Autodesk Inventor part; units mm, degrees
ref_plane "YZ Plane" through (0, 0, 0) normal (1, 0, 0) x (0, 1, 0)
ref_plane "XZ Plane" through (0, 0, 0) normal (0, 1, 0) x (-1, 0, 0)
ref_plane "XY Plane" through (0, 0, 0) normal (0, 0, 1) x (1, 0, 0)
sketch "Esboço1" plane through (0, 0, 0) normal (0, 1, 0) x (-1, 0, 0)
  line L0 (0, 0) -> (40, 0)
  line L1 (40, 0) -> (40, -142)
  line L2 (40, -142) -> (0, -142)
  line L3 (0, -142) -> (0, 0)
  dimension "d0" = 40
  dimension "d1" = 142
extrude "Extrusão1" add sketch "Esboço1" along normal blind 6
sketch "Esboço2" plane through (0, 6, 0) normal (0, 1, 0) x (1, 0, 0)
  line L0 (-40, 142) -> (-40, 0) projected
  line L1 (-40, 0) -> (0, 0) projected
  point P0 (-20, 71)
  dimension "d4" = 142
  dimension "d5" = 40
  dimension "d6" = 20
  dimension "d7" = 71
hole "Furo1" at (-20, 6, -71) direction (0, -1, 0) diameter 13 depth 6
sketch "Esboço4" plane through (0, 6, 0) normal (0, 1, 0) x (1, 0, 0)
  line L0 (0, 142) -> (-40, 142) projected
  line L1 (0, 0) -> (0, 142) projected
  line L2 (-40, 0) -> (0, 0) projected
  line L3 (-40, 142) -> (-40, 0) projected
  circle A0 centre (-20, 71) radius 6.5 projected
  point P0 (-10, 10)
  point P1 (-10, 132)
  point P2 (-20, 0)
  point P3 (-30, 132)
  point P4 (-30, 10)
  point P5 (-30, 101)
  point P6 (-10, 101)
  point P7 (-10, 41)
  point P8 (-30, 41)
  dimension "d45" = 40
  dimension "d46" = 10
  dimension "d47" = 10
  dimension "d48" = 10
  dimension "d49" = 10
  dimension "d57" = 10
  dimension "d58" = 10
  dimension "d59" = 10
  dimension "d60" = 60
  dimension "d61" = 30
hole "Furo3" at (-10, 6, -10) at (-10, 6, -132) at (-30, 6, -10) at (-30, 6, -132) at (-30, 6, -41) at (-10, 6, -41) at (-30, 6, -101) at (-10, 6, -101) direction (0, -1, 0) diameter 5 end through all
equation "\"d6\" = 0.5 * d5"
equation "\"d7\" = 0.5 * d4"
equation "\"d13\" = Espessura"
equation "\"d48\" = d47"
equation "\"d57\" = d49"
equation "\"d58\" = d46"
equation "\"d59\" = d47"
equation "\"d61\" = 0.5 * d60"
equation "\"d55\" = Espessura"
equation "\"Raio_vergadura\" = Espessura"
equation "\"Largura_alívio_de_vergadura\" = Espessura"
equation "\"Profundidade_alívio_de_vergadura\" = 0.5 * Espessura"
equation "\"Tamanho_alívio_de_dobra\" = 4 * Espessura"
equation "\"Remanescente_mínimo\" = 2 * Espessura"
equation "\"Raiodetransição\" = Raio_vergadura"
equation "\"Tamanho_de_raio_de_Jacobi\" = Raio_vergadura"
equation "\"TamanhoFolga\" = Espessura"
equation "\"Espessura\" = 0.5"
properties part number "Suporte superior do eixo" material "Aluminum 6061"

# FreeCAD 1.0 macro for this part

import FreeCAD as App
import Part
import Sketcher
from FreeCAD import Vector
Q = App.Units.Quantity


def add_polygon(sketch, points):
    """Adds a closed chain of lines whose ends are joined by coincident constraints."""
    first, n = sketch.GeometryCount, len(points)
    for a, b in zip(points, points[1:] + points[:1]):
        sketch.addGeometry(Part.LineSegment(App.Vector(*a, 0), App.Vector(*b, 0)), False)
    for i in range(n):
        sketch.addConstraint(Sketcher.Constraint("Coincident", first + i, 2, first + (i + 1) % n, 1))

doc = App.newDocument("Part")
body = doc.addObject("PartDesign::Body", "Body")

sketch1 = body.newObject("Sketcher::SketchObject", "Sketch")
sketch1.AttachmentSupport = (doc.getObject("XZ_Plane"), [""])
sketch1.MapMode = "FlatFace"
add_polygon(sketch1, [(-40, 0), (0, 0), (0, -142), (-40, -142)])
sketch1.addConstraint(Sketcher.Constraint("Horizontal", 0))
sketch1.addConstraint(Sketcher.Constraint("Vertical", 1))
sketch1.addConstraint(Sketcher.Constraint("Horizontal", 2))
sketch1.addConstraint(Sketcher.Constraint("Vertical", 3))
sketch1.addConstraint(Sketcher.Constraint("Coincident", 0, 2, -1, 1))
sketch1.addConstraint(Sketcher.Constraint("DistanceX", 0, 1, 0, 2, Q("40 mm")))
sketch1.addConstraint(Sketcher.Constraint("DistanceY", 1, 2, 1, 1, Q("142 mm")))
pad1 = body.newObject("PartDesign::Pad", "Pad")
pad1.Profile = sketch1
pad1.Length = 6
pad1.Reversed = True

sketch2 = body.newObject("Sketcher::SketchObject", "Sketch001")
sketch2.AttachmentSupport = (doc.getObject("XZ_Plane"), [""])
sketch2.MapMode = "FlatFace"
sketch2.AttachmentOffset = App.Placement(Vector(0, 0, -6), App.Rotation())
sketch2.addGeometry(Part.Circle(Vector(-20, -71, 0), Vector(0, 0, 1), 6), False)
sketch2.addConstraint(Sketcher.Constraint("Diameter", 0, Q("13 mm")))
sketch2.addConstraint(Sketcher.Constraint("DistanceX", 0, 3, -1, 1, Q("20 mm")))
sketch2.addConstraint(Sketcher.Constraint("DistanceY", 0, 3, -1, 1, Q("71 mm")))
doc.recompute()
hole = body.newObject("PartDesign::Hole", "Hole")
hole.Profile = sketch2
hole.ThreadType = "None"
hole.Diameter = 13
hole.DepthType = "Dimension"
hole.Depth = 6
hole.DrillPoint = "Flat"
hole.Reversed = True

sketch3 = body.newObject("Sketcher::SketchObject", "Sketch002")
sketch3.AttachmentSupport = (doc.getObject("XZ_Plane"), [""])
sketch3.MapMode = "FlatFace"
sketch3.AttachmentOffset = App.Placement(Vector(0, 0, -6), App.Rotation())
sketch3.addGeometry(Part.Circle(Vector(-10, -10, 0), Vector(0, 0, 1), 2.5), False)
sketch3.addGeometry(Part.Circle(Vector(-10, -132, 0), Vector(0, 0, 1), 2.5), False)
sketch3.addGeometry(Part.Circle(Vector(-30, -10, 0), Vector(0, 0, 1), 2.5), False)
sketch3.addGeometry(Part.Circle(Vector(-30, -132, 0), Vector(0, 0, 1), 2.5), False)
sketch3.addGeometry(Part.Circle(Vector(-30, -41, 0), Vector(0, 0, 1), 2.5), False)
sketch3.addGeometry(Part.Circle(Vector(-10, -41, 0), Vector(0, 0, 1), 2.5), False)
sketch3.addGeometry(Part.Circle(Vector(-30, -101, 0), Vector(0, 0, 1), 2.5), False)
sketch3.addGeometry(Part.Circle(Vector(-10, -101, 0), Vector(0, 0, 1), 2.5), False)
sketch3.addConstraint(Sketcher.Constraint("Equal", 0, 1))
sketch3.addConstraint(Sketcher.Constraint("Equal", 1, 2))
sketch3.addConstraint(Sketcher.Constraint("Equal", 2, 3))
sketch3.addConstraint(Sketcher.Constraint("Equal", 3, 4))
sketch3.addConstraint(Sketcher.Constraint("Equal", 4, 5))
sketch3.addConstraint(Sketcher.Constraint("Equal", 5, 6))
sketch3.addConstraint(Sketcher.Constraint("Equal", 6, 7))
sketch3.addConstraint(Sketcher.Constraint("Horizontal", 0, 3, 2, 3))
sketch3.addConstraint(Sketcher.Constraint("Horizontal", 1, 3, 3, 3))
sketch3.addConstraint(Sketcher.Constraint("Horizontal", 4, 3, 5, 3))
sketch3.addConstraint(Sketcher.Constraint("Horizontal", 6, 3, 7, 3))
sketch3.addConstraint(Sketcher.Constraint("Vertical", 0, 3, 1, 3))
sketch3.addConstraint(Sketcher.Constraint("Vertical", 2, 3, 3, 3))
sketch3.addConstraint(Sketcher.Constraint("Vertical", 3, 3, 4, 3))
sketch3.addConstraint(Sketcher.Constraint("Vertical", 1, 3, 5, 3))
sketch3.addConstraint(Sketcher.Constraint("Vertical", 4, 3, 6, 3))
sketch3.addConstraint(Sketcher.Constraint("Vertical", 5, 3, 7, 3))
sketch3.addConstraint(Sketcher.Constraint("Diameter", 0, Q("5 mm")))
sketch3.addConstraint(Sketcher.Constraint("DistanceX", 0, 3, -1, 1, Q("10 mm")))
sketch3.addConstraint(Sketcher.Constraint("DistanceY", 0, 3, -1, 1, Q("10 mm")))
sketch3.addConstraint(Sketcher.Constraint("DistanceY", 1, 3, -1, 1, Q("132 mm")))
sketch3.addConstraint(Sketcher.Constraint("DistanceX", 2, 3, -1, 1, Q("30 mm")))
sketch3.addConstraint(Sketcher.Constraint("DistanceY", 4, 3, -1, 1, Q("41 mm")))
sketch3.addConstraint(Sketcher.Constraint("DistanceY", 6, 3, -1, 1, Q("101 mm")))
doc.recompute()
hole2 = body.newObject("PartDesign::Hole", "Hole001")
hole2.Profile = sketch3
hole2.ThreadType = "None"
hole2.Diameter = 5
hole2.DepthType = "ThroughAll"
hole2.Reversed = True

doc.recompute()
